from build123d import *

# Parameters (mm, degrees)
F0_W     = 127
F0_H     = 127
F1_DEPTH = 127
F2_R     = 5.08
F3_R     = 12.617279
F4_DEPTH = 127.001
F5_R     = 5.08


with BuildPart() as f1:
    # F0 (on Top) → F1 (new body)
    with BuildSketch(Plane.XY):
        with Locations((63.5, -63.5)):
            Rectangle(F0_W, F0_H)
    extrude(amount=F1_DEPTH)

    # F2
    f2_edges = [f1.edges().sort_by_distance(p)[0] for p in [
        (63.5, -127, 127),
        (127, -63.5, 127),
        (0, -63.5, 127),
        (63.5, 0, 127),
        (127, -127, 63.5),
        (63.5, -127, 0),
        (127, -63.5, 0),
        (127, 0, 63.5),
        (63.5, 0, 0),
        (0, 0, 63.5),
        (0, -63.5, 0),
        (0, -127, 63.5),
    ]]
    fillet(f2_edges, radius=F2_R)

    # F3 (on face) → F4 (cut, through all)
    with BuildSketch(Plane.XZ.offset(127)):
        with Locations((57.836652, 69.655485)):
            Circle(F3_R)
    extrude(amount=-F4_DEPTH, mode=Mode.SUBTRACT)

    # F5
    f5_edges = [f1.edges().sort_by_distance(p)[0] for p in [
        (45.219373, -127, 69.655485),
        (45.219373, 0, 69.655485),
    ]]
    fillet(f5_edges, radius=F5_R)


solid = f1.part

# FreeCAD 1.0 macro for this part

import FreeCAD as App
import Part
import Sketcher

V = App.Vector
Q = App.Units.Quantity


def edges_at(feature, points):
    """Names of the edges that pass closest to the given points."""
    edges = feature.Shape.Edges
    near = lambda p: min(range(len(edges)), key=lambda i: edges[i].distToShape(Part.Vertex(*p))[0])
    return sorted({f"Edge{near(p) + 1}" for p in points})


def add_polygon(sketch, points):
    """Adds a closed chain of lines whose ends are joined by coincident constraints."""
    first, n = sketch.GeometryCount, len(points)
    for a, b in zip(points, points[1:] + points[:1]):
        sketch.addGeometry(Part.LineSegment(App.Vector(*a, 0), App.Vector(*b, 0)), False)
    for i in range(n):
        sketch.addConstraint(Sketcher.Constraint("Coincident", first + i, 2, first + (i + 1) % n, 1))

doc = App.newDocument("Part")
body = doc.addObject("PartDesign::Body", "Body")

# Sketch on XY plane
sketch1 = doc.addObject("Sketcher::SketchObject", "Sketch")
body.addObject(sketch1)
sketch1.AttachmentSupport = (doc.XY_Plane, [""])
sketch1.MapMode = "FlatFace"
add_polygon(sketch1, [(0, 0), (0, -127), (127, -127), (127, 0)])  # lines 0-3
sketch1.addConstraint([
    Sketcher.Constraint("Vertical", 0),
    Sketcher.Constraint("Horizontal", 1),
    Sketcher.Constraint("Vertical", 2),
    Sketcher.Constraint("Horizontal", 3),
    Sketcher.Constraint("Coincident", 3, 2, -1, 1),
    Sketcher.Constraint("Equal", 3, 0),
    Sketcher.Constraint("DistanceX", 1, 1, 1, 2, Q("5 in")),
])
pad1 = doc.addObject("PartDesign::Pad", "Pad")
body.addObject(pad1)
pad1.Profile = sketch1
pad1.Length = Q("5 in")
doc.recompute()

fillet = doc.addObject("PartDesign::Fillet", "Fillet")
body.addObject(fillet)
fillet.Base = (pad1, ["Edge1"])
fillet.UseAllEdges = True
fillet.Radius = Q("0.2 in")

# Sketch on XZ plane
sketch2 = doc.addObject("Sketcher::SketchObject", "Sketch001")
body.addObject(sketch2)
sketch2.AttachmentSupport = (doc.XZ_Plane, [""])
sketch2.MapMode = "FlatFace"
sketch2.AttachmentOffset = App.Placement(V(0, 0, 5 * 25.4), App.Rotation())
sketch2.addGeometry(Part.Circle(V(58, 70, 0), V(0, 0, 1), 13), False)
sketch2.addConstraint([
    Sketcher.Constraint("Diameter", 0, 25.234558),
    Sketcher.Constraint("DistanceX", -1, 1, 0, 3, 57.836652),
    Sketcher.Constraint("DistanceY", -1, 1, 0, 3, 69.655485),
])
pocket1 = doc.addObject("PartDesign::Pocket", "Pocket")
body.addObject(pocket1)
pocket1.Profile = sketch2
pocket1.Type = "ThroughAll"
doc.recompute()

fillet2 = doc.addObject("PartDesign::Fillet", "Fillet001")
body.addObject(fillet2)
fillet2.Base = (pocket1, edges_at(pocket1, [(45.219, -127, 69.655), (45.219, 0, 69.655)]))
fillet2.Radius = Q("0.2 in")

doc.recompute()
